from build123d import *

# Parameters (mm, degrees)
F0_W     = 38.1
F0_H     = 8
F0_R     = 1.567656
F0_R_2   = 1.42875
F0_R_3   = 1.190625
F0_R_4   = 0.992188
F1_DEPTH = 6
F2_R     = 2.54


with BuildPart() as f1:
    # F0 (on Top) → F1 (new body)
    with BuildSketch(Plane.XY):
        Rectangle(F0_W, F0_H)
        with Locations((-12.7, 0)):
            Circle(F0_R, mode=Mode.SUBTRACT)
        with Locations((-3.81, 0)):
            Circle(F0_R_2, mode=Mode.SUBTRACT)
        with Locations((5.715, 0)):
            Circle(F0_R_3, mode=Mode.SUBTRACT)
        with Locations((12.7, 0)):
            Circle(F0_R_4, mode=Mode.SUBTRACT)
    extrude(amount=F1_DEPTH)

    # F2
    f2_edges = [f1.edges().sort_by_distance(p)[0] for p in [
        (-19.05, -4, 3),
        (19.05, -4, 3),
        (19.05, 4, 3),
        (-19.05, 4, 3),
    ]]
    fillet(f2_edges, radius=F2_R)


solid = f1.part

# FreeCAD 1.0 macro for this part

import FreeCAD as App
import Part
import Sketcher
Q = App.Units.Quantity


def edges_at(feature, points):
    """Names of the edges that pass closest to the given points."""
    edges = feature.Shape.Edges
    near = lambda p: min(range(len(edges)), key=lambda i: edges[i].distToShape(Part.Vertex(*p))[0])
    return sorted({f"Edge{near(p) + 1}" for p in points})


def add_polygon(sketch, points):
    """Adds a closed chain of lines whose ends are joined by coincident constraints."""
    first, n = sketch.GeometryCount, len(points)
    for a, b in zip(points, points[1:] + points[:1]):
        sketch.addGeometry(Part.LineSegment(App.Vector(*a, 0), App.Vector(*b, 0)), False)
    for i in range(n):
        sketch.addConstraint(Sketcher.Constraint("Coincident", first + i, 2, first + (i + 1) % n, 1))

doc = App.newDocument("Part")
body = doc.addObject("PartDesign::Body", "Body")

# Sketch on XY plane
sketch1 = doc.addObject("Sketcher::SketchObject", "Sketch")
body.addObject(sketch1)
sketch1.AttachmentSupport = (doc.XY_Plane, [""])
sketch1.MapMode = "FlatFace"
add_polygon(sketch1, [(-19.1, 4), (-19.1, -4), (19.1, -4), (19.1, 4)])  # lines 0-3
sketch1.addGeometry(Part.Circle(App.Vector(-12.7, 0, 0), App.Vector(0, 0, 1), 1.6), False)  # 4
sketch1.addGeometry(Part.Circle(App.Vector(-3.8, 0, 0), App.Vector(0, 0, 1), 1.4), False)  # 5
sketch1.addGeometry(Part.Circle(App.Vector(5.7, 0, 0), App.Vector(0, 0, 1), 1.2), False)  # 6
sketch1.addGeometry(Part.Circle(App.Vector(12.7, 0, 0), App.Vector(0, 0, 1), 1), False)  # 7
sketch1.addConstraint([
    Sketcher.Constraint("Vertical", 0),
    Sketcher.Constraint("Horizontal", 1),
    Sketcher.Constraint("Vertical", 2),
    Sketcher.Constraint("Horizontal", 3),
    Sketcher.Constraint("Symmetric", 4, 3, 7, 3, -1, 1),
    Sketcher.Constraint("Symmetric", 0, 2, 2, 2, -1, 1),
    Sketcher.Constraint("PointOnObject", 4, 3, -1),
    Sketcher.Constraint("PointOnObject", 5, 3, -1),
    Sketcher.Constraint("PointOnObject", 6, 3, -1),
    Sketcher.Constraint("Diameter", 6, Q("0.09375 in")),
    Sketcher.Constraint("Diameter", 7, Q("0.078125 in")),
    Sketcher.Constraint("DistanceX", 1, 1, 1, 2, Q("1.5 in")),
    Sketcher.Constraint("DistanceX", 4, 3, 7, 3, Q("1 in")),
    Sketcher.Constraint("Diameter", 5, Q("0.1125 in")),
    Sketcher.Constraint("DistanceX", 0, 2, 5, 3, Q("0.6 in")),
    Sketcher.Constraint("Diameter", 4, 3.135312),
    Sketcher.Constraint("DistanceX", -1, 1, 6, 3, Q("0.225 in")),
    Sketcher.Constraint("DistanceY", 0, 2, 0, 1, 8.0),
])
pad1 = doc.addObject("PartDesign::Pad", "Pad")
body.addObject(pad1)
pad1.Profile = sketch1
pad1.Length = 6
doc.recompute()

fillet = doc.addObject("PartDesign::Fillet", "Fillet")
body.addObject(fillet)
fillet.Base = (pad1, edges_at(pad1, [
    (-19.05, -4, 3),
    (19.05, -4, 3),
    (19.05, 4, 3),
    (-19.05, 4, 3),
]))
fillet.Radius = Q("0.1 in")

doc.recompute()
